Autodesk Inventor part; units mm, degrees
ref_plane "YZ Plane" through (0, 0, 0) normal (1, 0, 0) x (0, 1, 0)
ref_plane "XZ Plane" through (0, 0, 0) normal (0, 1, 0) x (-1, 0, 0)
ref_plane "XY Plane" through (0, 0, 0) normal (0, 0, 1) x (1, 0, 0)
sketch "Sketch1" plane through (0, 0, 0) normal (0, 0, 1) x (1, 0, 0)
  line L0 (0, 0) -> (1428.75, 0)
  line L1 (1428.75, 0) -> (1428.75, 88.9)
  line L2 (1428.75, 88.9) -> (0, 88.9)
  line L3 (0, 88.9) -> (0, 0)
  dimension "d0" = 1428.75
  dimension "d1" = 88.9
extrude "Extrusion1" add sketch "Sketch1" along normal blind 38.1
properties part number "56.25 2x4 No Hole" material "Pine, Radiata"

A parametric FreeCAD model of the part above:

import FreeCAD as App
import Part
import Sketcher
Q = App.Units.Quantity


def add_polygon(sketch, points):
    """Adds a closed chain of lines whose ends are joined by coincident constraints."""
    first, n = sketch.GeometryCount, len(points)
    for a, b in zip(points, points[1:] + points[:1]):
        sketch.addGeometry(Part.LineSegment(App.Vector(*a, 0), App.Vector(*b, 0)), False)
    for i in range(n):
        sketch.addConstraint(Sketcher.Constraint("Coincident", first + i, 2, first + (i + 1) % n, 1))

doc = App.newDocument("Part")
body = doc.addObject("PartDesign::Body", "Body")

# Sketch on XY plane
sketch1 = body.newObject("Sketcher::SketchObject", "Sketch")
sketch1.AttachmentSupport = (doc.getObject("XY_Plane"), [""])
sketch1.MapMode = "FlatFace"
add_polygon(sketch1, [(0, 89), (0, 0), (1429, 0), (1429, 89)])  # lines 0-3
sketch1.addConstraint([
    Sketcher.Constraint("Vertical", 0),
    Sketcher.Constraint("Horizontal", 1),
    Sketcher.Constraint("Vertical", 2),
    Sketcher.Constraint("Horizontal", 3),
    Sketcher.Constraint("Coincident", 0, 2, -1, 1),
    Sketcher.Constraint("DistanceY", 0, 2, 0, 1, Q("3.5 in")),
    Sketcher.Constraint("DistanceX", 1, 1, 1, 2, Q("56.25 in")),
])
pad1 = body.newObject("PartDesign::Pad", "Pad")
pad1.Profile = sketch1
pad1.Length = Q("1.5 in")

doc.recompute()
